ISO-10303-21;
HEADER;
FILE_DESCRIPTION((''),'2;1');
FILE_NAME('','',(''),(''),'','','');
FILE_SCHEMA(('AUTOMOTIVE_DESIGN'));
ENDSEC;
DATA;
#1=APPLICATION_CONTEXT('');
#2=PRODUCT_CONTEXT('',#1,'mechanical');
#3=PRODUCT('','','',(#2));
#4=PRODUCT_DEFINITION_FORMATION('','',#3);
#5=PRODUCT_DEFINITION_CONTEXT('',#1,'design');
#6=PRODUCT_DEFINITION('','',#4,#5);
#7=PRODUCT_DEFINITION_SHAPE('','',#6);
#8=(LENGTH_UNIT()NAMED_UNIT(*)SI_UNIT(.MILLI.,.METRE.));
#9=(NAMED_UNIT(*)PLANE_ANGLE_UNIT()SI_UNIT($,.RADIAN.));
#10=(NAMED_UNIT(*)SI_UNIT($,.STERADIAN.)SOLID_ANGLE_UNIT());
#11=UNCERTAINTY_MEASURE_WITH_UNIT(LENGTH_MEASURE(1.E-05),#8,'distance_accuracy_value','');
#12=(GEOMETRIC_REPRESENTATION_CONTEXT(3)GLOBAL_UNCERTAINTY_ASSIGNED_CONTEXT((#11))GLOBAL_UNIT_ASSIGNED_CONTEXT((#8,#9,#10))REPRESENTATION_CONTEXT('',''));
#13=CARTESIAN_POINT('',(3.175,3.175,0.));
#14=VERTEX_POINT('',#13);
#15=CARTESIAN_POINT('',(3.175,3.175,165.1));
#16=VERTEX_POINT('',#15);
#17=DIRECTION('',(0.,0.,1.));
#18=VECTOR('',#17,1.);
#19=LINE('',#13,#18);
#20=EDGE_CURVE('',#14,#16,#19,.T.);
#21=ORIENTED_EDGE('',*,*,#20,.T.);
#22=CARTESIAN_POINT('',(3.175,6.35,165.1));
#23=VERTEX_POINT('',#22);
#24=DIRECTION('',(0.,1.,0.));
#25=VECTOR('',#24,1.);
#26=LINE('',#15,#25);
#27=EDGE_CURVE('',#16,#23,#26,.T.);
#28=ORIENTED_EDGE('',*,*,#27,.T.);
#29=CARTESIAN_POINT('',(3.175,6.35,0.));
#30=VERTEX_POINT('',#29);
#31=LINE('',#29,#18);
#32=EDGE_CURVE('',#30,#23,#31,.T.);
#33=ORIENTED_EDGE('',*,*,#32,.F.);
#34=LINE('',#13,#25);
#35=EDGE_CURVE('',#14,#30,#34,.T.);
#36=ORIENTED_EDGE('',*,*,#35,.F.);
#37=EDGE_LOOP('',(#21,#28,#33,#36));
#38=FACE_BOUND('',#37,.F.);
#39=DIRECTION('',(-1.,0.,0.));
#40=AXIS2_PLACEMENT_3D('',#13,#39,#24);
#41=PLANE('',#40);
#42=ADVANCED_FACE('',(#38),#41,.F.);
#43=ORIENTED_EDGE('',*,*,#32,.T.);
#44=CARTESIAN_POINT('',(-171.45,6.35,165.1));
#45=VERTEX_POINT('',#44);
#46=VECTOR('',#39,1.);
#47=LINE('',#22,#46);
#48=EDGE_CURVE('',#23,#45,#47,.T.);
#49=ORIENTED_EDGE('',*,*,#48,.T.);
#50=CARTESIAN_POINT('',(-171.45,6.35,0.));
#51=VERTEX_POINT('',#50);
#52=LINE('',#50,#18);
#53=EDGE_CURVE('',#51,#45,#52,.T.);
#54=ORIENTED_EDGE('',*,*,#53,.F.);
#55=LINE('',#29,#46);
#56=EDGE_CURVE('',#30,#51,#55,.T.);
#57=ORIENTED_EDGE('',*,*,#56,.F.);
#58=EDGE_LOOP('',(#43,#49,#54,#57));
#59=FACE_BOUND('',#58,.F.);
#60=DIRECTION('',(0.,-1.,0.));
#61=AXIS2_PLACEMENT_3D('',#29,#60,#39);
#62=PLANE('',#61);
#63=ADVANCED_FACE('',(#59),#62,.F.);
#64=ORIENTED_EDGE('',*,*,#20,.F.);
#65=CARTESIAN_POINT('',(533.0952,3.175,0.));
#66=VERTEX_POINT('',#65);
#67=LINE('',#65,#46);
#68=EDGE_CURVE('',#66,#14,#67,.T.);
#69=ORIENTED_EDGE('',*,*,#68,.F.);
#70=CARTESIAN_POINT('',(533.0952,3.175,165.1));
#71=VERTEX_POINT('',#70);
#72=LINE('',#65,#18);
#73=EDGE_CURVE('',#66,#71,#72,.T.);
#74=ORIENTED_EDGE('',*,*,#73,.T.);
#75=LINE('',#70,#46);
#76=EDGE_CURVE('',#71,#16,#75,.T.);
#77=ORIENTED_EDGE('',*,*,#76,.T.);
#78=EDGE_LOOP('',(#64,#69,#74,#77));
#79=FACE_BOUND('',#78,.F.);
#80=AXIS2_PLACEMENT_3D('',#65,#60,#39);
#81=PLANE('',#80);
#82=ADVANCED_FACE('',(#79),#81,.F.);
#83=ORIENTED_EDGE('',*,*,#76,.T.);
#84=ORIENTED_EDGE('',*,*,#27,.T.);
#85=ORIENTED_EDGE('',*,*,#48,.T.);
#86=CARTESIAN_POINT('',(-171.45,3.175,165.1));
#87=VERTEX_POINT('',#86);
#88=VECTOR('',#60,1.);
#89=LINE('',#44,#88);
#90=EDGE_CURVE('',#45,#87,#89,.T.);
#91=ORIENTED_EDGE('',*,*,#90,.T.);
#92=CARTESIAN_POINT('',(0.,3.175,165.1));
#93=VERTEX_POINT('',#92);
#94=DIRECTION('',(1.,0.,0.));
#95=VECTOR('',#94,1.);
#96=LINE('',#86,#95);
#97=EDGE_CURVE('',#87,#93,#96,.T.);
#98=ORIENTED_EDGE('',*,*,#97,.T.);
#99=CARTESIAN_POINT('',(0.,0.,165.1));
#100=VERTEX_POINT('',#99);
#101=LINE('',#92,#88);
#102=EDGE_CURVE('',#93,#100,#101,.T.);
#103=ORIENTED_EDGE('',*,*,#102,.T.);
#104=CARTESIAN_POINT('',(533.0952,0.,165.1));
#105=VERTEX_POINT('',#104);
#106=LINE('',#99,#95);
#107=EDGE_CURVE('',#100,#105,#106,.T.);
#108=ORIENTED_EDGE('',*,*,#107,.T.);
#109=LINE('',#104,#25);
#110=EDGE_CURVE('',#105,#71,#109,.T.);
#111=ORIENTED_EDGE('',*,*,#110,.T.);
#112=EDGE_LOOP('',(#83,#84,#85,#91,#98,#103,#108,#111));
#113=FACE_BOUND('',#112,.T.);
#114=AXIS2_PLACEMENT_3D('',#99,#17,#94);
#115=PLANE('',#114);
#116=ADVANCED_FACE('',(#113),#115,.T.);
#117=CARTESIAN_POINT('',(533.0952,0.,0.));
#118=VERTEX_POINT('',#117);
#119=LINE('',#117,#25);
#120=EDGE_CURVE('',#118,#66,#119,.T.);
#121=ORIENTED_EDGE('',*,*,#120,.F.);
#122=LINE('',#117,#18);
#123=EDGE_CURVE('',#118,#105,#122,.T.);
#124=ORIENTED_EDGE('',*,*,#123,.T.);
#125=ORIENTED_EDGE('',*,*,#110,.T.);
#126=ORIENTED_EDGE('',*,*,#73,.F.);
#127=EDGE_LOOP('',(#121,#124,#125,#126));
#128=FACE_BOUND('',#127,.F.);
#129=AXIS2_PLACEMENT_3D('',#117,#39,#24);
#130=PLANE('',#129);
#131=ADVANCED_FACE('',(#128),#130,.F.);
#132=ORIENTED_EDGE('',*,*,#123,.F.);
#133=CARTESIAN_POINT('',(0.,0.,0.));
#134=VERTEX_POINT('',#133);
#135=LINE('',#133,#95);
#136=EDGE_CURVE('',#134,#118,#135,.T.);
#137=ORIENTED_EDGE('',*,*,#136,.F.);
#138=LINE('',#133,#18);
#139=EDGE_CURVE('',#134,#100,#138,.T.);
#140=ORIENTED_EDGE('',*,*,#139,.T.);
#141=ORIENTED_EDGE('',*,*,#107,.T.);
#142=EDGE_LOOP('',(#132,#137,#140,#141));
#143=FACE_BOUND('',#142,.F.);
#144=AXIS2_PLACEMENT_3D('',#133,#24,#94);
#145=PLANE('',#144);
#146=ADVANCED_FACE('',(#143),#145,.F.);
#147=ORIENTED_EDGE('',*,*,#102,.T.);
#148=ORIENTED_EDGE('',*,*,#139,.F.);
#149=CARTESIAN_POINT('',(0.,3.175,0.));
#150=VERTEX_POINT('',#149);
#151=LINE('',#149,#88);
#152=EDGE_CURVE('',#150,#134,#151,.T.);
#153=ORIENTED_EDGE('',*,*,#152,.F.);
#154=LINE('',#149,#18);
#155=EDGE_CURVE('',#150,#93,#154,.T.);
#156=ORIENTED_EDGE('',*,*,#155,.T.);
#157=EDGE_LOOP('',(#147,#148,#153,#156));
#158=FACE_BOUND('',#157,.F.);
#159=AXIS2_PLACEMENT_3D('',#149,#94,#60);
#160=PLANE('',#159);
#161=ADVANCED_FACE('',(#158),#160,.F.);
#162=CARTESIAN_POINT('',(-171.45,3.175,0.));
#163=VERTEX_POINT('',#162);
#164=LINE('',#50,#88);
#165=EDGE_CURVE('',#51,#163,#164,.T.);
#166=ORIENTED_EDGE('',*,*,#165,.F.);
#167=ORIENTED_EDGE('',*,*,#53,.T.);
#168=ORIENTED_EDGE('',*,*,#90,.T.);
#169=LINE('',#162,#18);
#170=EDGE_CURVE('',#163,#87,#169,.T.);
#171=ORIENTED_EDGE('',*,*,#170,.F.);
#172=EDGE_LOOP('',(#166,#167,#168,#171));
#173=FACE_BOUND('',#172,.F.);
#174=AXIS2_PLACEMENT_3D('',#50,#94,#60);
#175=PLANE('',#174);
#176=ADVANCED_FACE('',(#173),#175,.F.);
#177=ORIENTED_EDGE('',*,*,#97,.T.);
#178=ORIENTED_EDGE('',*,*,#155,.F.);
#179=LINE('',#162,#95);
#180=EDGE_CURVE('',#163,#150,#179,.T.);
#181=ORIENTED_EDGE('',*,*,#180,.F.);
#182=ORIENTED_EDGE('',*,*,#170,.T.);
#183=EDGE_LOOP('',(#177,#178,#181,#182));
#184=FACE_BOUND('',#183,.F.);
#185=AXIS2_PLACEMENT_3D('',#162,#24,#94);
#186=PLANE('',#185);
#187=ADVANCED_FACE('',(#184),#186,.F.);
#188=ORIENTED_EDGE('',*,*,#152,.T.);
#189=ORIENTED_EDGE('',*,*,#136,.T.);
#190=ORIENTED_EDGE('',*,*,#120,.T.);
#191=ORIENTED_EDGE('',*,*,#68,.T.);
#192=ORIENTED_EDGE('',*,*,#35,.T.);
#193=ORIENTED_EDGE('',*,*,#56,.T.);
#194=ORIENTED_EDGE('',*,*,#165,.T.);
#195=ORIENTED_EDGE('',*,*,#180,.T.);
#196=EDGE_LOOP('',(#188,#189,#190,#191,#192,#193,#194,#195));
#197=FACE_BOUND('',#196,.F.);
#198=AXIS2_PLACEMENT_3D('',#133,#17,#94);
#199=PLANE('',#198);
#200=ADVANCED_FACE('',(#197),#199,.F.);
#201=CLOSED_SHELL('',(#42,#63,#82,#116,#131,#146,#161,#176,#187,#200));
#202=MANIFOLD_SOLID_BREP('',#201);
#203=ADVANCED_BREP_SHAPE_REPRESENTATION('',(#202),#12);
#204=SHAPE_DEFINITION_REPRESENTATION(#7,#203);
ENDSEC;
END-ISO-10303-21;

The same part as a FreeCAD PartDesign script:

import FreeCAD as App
import Part
import Sketcher
Q = App.Units.Quantity

doc = App.newDocument("Part")
body = doc.addObject("PartDesign::Body", "Body")

# Sketch on XY plane
sketch1 = doc.addObject("Sketcher::SketchObject", "Sketch")
body.addObject(sketch1)
sketch1.AttachmentSupport = (doc.XY_Plane, [""])
sketch1.MapMode = "FlatFace"
sketch1.addGeometry(Part.LineSegment(App.Vector(0, 3.2, 0), App.Vector(0, 0, 0)), False)
sketch1.addGeometry(Part.LineSegment(App.Vector(0, 0, 0), App.Vector(533.1, 0, 0)), False)
sketch1.addGeometry(Part.LineSegment(App.Vector(533.1, 0, 0), App.Vector(533.1, 3.2, 0)), False)
sketch1.addGeometry(Part.LineSegment(App.Vector(533.1, 3.2, 0), App.Vector(3.2, 3.2, 0)), False)
sketch1.addGeometry(Part.LineSegment(App.Vector(3.2, 3.2, 0), App.Vector(3.2, 6.3, 0)), False)
sketch1.addGeometry(Part.LineSegment(App.Vector(3.2, 6.3, 0), App.Vector(-171.4, 6.3, 0)), False)
sketch1.addGeometry(Part.LineSegment(App.Vector(-171.4, 6.3, 0), App.Vector(-171.4, 3.2, 0)), False)
sketch1.addGeometry(Part.LineSegment(App.Vector(-171.4, 3.2, 0), App.Vector(0, 3.2, 0)), False)
sketch1.addConstraint(Sketcher.Constraint("Coincident", 0, 2, 1, 1))
sketch1.addConstraint(Sketcher.Constraint("Coincident", 1, 2, 2, 1))
sketch1.addConstraint(Sketcher.Constraint("Coincident", 2, 2, 3, 1))
sketch1.addConstraint(Sketcher.Constraint("Coincident", 3, 2, 4, 1))
sketch1.addConstraint(Sketcher.Constraint("Coincident", 4, 2, 5, 1))
sketch1.addConstraint(Sketcher.Constraint("Coincident", 5, 2, 6, 1))
sketch1.addConstraint(Sketcher.Constraint("Coincident", 6, 2, 7, 1))
sketch1.addConstraint(Sketcher.Constraint("Coincident", 7, 2, 0, 1))
sketch1.addConstraint(Sketcher.Constraint("Vertical", 0))
sketch1.addConstraint(Sketcher.Constraint("Horizontal", 1))
sketch1.addConstraint(Sketcher.Constraint("Vertical", 2))
sketch1.addConstraint(Sketcher.Constraint("Horizontal", 3))
sketch1.addConstraint(Sketcher.Constraint("Vertical", 4))
sketch1.addConstraint(Sketcher.Constraint("Horizontal", 5))
sketch1.addConstraint(Sketcher.Constraint("Vertical", 6))
sketch1.addConstraint(Sketcher.Constraint("Horizontal", 7))
sketch1.addConstraint(Sketcher.Constraint("Coincident", 0, 2, -1, 1))
sketch1.addConstraint(Sketcher.Constraint("Horizontal", 3, 2, 6, 2))
sketch1.addConstraint(Sketcher.Constraint("Equal", 2, 4))
sketch1.addConstraint(Sketcher.Constraint("DistanceX", 7, 1, 7, 2, Q("6.75 in")))
sketch1.addConstraint(Sketcher.Constraint("DistanceX", 1, 1, 1, 2, Q("20.988 in")))
sketch1.addConstraint(Sketcher.Constraint("DistanceY", 0, 2, 0, 1, Q("0.125 in")))
sketch1.addConstraint(Sketcher.Constraint("DistanceX", -1, 1, 3, 2, Q("0.125 in")))
pad1 = doc.addObject("PartDesign::Pad", "Pad")
body.addObject(pad1)
pad1.Profile = sketch1
pad1.Length = Q("6.5 in")

doc.recompute()
